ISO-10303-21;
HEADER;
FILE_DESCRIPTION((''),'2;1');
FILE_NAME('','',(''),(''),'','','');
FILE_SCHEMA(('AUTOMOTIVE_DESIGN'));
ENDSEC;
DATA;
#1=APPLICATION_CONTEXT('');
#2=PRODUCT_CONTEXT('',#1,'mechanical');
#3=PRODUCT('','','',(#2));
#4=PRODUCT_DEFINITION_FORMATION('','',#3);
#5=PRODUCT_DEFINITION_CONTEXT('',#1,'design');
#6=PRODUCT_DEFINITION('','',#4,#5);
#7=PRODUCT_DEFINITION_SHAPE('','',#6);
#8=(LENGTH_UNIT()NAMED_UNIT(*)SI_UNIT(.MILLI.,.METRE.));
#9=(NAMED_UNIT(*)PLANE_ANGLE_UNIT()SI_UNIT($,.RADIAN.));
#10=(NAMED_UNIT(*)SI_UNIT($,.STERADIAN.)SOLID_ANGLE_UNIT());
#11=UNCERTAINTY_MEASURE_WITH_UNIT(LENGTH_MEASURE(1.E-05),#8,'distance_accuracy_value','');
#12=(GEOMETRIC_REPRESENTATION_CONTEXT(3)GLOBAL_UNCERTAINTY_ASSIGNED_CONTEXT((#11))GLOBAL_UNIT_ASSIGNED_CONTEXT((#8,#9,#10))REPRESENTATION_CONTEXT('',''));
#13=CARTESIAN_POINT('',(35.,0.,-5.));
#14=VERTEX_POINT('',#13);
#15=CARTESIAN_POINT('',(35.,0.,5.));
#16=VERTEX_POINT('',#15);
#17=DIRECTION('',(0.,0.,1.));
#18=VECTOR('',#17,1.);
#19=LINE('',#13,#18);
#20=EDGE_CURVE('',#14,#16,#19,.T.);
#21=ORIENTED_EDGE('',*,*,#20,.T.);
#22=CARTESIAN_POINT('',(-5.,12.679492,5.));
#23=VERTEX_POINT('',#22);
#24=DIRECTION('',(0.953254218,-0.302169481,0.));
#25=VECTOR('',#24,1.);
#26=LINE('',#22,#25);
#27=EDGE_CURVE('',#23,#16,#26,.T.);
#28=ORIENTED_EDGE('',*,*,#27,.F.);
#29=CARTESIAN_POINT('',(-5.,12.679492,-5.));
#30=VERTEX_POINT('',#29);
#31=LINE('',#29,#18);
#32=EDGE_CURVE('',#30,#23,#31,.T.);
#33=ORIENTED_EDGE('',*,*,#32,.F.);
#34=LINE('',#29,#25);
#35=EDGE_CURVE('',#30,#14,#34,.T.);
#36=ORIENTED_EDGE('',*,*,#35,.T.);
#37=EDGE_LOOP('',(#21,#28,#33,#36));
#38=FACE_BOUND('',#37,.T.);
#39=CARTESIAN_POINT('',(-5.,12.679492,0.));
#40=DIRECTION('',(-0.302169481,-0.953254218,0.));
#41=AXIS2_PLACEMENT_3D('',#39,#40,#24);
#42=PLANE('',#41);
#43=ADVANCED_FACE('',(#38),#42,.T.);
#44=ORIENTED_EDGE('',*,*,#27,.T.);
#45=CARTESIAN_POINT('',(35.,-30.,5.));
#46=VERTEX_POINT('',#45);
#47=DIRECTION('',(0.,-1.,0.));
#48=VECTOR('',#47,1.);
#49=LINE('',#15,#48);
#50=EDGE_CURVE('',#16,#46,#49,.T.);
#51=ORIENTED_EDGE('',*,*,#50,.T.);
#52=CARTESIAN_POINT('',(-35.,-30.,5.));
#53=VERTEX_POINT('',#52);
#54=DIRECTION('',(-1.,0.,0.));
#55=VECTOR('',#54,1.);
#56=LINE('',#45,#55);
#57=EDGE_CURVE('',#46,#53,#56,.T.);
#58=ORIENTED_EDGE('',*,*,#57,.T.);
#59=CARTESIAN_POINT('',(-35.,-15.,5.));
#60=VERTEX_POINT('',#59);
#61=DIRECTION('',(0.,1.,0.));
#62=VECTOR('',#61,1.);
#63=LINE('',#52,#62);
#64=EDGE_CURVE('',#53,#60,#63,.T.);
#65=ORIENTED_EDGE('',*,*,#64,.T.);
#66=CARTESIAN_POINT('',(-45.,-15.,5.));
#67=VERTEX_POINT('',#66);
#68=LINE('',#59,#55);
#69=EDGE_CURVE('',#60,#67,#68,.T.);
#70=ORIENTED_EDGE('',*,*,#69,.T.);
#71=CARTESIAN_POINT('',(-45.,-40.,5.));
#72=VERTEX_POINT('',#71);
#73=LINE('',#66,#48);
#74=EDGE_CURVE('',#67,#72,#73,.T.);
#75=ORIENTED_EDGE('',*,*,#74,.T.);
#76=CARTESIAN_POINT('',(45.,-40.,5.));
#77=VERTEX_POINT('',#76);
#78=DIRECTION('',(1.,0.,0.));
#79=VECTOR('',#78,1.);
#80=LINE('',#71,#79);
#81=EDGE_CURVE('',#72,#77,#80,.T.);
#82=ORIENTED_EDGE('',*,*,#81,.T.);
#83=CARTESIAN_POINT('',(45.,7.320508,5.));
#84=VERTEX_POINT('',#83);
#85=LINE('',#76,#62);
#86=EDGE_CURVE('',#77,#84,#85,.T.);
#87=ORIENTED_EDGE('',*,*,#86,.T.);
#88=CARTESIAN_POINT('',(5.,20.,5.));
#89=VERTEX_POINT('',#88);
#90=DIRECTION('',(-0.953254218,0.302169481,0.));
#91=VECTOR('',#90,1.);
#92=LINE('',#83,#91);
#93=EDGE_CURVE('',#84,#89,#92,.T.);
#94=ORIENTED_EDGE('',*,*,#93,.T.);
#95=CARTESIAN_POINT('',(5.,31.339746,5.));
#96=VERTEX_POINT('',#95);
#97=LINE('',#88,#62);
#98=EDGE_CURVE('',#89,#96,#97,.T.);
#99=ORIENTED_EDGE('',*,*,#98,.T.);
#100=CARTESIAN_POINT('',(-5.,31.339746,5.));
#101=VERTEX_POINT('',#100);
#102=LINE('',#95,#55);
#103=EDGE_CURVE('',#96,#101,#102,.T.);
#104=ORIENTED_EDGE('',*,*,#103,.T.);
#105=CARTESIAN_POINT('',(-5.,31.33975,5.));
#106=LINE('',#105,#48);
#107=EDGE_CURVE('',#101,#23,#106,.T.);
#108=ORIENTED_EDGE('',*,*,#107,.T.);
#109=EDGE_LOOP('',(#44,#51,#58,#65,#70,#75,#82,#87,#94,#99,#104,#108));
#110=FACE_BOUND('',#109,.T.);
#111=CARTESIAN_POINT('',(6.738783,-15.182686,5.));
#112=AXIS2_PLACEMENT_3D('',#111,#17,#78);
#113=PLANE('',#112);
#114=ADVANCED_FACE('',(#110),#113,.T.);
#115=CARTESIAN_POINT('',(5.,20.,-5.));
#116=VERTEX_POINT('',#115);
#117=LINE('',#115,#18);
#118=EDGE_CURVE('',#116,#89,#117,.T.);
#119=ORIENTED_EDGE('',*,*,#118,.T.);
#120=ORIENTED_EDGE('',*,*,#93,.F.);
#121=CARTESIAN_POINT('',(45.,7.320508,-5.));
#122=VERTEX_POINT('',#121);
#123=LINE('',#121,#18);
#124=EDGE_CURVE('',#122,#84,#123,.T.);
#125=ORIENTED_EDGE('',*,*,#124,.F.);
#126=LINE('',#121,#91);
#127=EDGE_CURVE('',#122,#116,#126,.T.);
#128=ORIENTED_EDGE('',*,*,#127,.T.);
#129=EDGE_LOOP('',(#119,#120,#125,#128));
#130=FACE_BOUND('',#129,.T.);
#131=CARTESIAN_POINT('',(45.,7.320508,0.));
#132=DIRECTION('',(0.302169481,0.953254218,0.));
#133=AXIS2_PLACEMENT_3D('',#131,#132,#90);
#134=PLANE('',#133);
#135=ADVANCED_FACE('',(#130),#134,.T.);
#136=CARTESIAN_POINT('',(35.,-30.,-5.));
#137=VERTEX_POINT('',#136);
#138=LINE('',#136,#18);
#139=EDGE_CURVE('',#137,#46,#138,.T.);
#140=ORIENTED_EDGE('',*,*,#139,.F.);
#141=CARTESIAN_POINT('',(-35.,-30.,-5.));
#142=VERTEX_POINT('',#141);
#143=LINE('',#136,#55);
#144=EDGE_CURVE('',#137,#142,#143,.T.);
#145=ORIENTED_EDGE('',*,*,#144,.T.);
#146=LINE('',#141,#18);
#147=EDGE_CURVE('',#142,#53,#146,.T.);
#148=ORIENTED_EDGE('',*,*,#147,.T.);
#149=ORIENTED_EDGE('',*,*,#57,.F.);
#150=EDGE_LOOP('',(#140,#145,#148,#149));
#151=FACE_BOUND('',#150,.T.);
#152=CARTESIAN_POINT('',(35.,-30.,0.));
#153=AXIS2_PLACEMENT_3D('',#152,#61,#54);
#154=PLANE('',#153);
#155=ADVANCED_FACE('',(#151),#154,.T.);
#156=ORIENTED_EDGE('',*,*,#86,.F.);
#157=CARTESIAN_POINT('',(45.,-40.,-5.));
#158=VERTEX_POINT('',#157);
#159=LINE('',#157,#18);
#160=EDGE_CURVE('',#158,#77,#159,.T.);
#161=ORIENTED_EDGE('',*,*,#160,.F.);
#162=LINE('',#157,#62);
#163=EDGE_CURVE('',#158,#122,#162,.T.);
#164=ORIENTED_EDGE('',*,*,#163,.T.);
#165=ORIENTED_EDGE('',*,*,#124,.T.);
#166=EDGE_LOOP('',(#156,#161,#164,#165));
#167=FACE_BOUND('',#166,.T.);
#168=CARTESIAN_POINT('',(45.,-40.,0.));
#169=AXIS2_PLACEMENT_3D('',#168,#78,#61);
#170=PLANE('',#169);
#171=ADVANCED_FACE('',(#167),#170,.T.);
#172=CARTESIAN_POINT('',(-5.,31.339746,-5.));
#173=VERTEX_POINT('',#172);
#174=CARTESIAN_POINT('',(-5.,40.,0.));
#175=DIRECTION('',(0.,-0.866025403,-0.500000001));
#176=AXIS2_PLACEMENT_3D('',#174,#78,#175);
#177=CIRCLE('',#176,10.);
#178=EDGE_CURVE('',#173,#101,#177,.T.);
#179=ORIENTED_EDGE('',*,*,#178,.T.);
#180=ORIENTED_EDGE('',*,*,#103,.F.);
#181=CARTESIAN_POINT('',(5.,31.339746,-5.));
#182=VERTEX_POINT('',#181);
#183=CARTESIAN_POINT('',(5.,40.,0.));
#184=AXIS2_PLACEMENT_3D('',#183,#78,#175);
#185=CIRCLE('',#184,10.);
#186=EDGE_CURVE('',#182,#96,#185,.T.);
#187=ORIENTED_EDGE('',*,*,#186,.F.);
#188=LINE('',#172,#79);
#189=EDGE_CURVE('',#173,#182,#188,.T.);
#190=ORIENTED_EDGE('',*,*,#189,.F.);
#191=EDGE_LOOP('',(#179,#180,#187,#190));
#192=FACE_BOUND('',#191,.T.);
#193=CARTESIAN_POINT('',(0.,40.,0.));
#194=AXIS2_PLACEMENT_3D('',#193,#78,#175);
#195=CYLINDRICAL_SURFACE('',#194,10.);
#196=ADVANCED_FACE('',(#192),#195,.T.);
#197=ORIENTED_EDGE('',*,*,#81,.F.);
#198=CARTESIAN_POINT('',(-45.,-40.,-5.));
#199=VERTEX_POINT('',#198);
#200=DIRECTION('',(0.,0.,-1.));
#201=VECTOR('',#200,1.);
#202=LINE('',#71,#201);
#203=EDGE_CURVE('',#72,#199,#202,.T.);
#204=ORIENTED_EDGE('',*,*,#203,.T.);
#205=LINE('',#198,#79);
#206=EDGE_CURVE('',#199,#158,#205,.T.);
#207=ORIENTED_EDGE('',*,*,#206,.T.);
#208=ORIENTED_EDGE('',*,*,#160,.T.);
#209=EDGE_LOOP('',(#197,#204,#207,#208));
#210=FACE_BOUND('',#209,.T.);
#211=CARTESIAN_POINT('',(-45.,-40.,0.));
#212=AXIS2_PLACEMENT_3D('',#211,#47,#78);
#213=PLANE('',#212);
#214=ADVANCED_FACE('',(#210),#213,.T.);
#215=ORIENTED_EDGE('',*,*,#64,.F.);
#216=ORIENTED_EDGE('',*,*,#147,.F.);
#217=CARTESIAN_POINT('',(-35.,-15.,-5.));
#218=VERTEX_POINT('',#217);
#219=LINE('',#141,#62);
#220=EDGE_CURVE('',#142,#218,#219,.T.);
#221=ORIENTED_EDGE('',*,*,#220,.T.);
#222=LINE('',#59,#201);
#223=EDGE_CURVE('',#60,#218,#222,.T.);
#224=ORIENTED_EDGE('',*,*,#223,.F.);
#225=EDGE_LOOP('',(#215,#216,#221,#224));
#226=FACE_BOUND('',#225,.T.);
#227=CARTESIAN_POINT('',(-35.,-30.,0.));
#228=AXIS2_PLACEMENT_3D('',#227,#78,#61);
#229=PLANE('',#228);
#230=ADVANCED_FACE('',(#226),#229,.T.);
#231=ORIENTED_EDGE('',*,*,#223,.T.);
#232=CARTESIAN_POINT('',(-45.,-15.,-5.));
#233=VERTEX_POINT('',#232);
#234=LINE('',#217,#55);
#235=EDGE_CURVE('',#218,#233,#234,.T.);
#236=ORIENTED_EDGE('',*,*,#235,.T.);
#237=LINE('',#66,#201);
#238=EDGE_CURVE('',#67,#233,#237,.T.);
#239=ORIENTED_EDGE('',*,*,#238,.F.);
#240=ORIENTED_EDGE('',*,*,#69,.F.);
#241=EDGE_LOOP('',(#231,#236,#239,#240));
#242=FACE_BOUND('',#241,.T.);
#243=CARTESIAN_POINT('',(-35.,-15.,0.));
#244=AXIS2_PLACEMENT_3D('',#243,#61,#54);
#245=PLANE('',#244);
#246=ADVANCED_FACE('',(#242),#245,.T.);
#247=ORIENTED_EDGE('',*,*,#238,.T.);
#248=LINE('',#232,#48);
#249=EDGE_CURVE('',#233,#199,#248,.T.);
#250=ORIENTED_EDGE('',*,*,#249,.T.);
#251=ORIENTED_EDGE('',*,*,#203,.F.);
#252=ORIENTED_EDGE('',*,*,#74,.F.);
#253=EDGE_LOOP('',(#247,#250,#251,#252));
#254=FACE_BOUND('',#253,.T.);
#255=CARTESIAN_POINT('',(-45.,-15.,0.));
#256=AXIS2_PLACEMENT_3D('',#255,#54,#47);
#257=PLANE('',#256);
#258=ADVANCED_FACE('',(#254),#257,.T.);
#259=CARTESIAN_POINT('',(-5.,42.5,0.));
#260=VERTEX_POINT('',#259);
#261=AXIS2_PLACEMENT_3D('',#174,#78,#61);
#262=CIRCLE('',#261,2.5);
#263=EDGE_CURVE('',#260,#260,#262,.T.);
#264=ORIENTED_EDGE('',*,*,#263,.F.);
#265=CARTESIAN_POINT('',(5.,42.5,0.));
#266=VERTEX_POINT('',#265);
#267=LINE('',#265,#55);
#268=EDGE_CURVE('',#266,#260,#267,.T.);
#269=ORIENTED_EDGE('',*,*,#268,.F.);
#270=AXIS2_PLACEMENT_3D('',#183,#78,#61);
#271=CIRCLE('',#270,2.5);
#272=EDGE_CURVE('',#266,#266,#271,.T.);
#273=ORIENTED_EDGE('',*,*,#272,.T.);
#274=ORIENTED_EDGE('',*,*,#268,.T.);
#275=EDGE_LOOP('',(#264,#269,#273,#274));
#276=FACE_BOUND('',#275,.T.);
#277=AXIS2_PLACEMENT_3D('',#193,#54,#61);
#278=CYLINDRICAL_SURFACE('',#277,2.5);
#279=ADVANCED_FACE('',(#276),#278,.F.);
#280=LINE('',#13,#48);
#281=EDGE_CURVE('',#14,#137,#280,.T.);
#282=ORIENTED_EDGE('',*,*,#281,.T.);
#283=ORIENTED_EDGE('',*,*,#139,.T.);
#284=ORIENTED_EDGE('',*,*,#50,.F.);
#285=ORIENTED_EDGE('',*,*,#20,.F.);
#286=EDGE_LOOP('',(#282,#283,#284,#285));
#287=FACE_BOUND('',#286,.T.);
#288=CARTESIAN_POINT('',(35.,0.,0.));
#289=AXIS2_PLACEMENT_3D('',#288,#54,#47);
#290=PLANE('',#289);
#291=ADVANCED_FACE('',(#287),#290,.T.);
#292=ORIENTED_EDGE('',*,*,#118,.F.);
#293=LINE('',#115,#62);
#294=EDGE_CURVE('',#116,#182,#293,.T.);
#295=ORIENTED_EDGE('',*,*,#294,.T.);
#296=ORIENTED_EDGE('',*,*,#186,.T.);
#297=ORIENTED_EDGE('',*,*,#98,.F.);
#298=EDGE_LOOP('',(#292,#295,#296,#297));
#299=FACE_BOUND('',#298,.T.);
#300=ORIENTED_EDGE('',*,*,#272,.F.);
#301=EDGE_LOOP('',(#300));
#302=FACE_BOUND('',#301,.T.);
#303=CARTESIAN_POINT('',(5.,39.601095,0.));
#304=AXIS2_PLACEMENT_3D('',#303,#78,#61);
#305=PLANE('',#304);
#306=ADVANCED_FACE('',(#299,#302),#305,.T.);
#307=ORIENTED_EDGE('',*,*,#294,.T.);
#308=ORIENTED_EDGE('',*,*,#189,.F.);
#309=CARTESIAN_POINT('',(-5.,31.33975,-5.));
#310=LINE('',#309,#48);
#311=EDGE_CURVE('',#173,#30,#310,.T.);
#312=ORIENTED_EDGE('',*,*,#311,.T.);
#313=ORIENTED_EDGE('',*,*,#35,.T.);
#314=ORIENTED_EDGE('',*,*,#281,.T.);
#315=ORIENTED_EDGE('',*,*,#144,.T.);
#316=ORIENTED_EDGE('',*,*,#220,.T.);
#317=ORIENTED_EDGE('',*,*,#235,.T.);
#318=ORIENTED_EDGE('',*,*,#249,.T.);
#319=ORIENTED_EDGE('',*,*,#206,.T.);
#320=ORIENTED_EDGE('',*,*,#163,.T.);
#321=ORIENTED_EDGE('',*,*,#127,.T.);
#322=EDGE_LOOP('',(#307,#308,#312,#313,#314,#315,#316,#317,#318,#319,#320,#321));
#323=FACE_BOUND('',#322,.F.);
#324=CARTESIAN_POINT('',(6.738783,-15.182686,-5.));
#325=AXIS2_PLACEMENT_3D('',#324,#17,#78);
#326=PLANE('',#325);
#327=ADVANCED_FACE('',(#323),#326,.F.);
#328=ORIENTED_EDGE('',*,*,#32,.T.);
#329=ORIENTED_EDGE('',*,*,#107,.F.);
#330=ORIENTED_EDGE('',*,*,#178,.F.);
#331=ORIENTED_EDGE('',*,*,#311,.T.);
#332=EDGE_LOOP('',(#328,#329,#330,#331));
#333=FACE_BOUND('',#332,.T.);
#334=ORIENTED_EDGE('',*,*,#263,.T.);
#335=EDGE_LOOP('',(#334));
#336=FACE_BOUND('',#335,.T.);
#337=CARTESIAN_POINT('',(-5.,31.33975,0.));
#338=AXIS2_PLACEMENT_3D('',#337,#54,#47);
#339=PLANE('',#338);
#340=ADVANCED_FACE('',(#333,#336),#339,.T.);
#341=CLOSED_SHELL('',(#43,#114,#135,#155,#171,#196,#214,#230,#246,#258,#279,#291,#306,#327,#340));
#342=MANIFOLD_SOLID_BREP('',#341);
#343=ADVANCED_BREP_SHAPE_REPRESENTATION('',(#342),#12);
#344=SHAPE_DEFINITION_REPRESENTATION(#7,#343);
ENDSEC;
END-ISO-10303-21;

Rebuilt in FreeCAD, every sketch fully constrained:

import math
import FreeCAD as App
import Part
import Sketcher
Q = App.Units.Quantity

doc = App.newDocument("Part")
body = doc.addObject("PartDesign::Body", "Body")

sketch1 = body.newObject("Sketcher::SketchObject", "Sketch")
sketch1.AttachmentSupport = (doc.getObject("XY_Plane"), [""])
sketch1.MapMode = "FlatFace"
sketch1.addGeometry([
    Part.LineSegment(App.Vector(-45, -40, 0), App.Vector(45, -40, 0)),
    Part.LineSegment(App.Vector(45, -40, 0), App.Vector(45, 7.320508, 0)),
    Part.LineSegment(App.Vector(45, 7.320508, 0), App.Vector(5, 20, 0)),
    Part.LineSegment(App.Vector(5, 20, 0), App.Vector(5, 31.33975, 0)),
    Part.LineSegment(App.Vector(5, 31.33975, 0), App.Vector(-5, 31.33975, 0)),
    Part.LineSegment(App.Vector(-5, 31.33975, 0), App.Vector(-5, 12.679492, 0)),
    Part.LineSegment(App.Vector(-5, 12.679492, 0), App.Vector(35, 0, 0)),
    Part.LineSegment(App.Vector(35, 0, 0), App.Vector(35, -30, 0)),
    Part.LineSegment(App.Vector(35, -30, 0), App.Vector(-35, -30, 0)),
    Part.LineSegment(App.Vector(-35, -30, 0), App.Vector(-35, -15, 0)),
    Part.LineSegment(App.Vector(-35, -15, 0), App.Vector(-45, -15, 0)),
    Part.LineSegment(App.Vector(-45, -15, 0), App.Vector(-45, -40, 0)),
], False)
sketch1.addConstraint([
    Sketcher.Constraint("Coincident", 0, 2, 1, 1),
    Sketcher.Constraint("Coincident", 1, 2, 2, 1),
    Sketcher.Constraint("Coincident", 2, 2, 3, 1),
    Sketcher.Constraint("Coincident", 3, 2, 4, 1),
    Sketcher.Constraint("Coincident", 4, 2, 5, 1),
    Sketcher.Constraint("Coincident", 5, 2, 6, 1),
    Sketcher.Constraint("Coincident", 6, 2, 7, 1),
    Sketcher.Constraint("Coincident", 7, 2, 8, 1),
    Sketcher.Constraint("Coincident", 8, 2, 9, 1),
    Sketcher.Constraint("Coincident", 9, 2, 10, 1),
    Sketcher.Constraint("Coincident", 10, 2, 11, 1),
    Sketcher.Constraint("Coincident", 11, 2, 0, 1),
    Sketcher.Constraint("Horizontal", 0),
    Sketcher.Constraint("Vertical", 1),
    Sketcher.Constraint("Vertical", 3),
    Sketcher.Constraint("Horizontal", 4),
    Sketcher.Constraint("Vertical", 5),
    Sketcher.Constraint("Vertical", 7),
    Sketcher.Constraint("Horizontal", 8),
    Sketcher.Constraint("Vertical", 9),
    Sketcher.Constraint("Horizontal", 10),
    Sketcher.Constraint("Vertical", 11),
    Sketcher.Constraint("PointOnObject", 6, 2, -1),
    Sketcher.Constraint("Parallel", 2, 6),
    Sketcher.Constraint("Equal", 4, 10),
    Sketcher.Constraint("Equal", 2, 6),
    Sketcher.Constraint("DistanceX", 0, 1, 0, 2, Q("90 mm")),
    Sketcher.Constraint("DistanceX", 4, 2, 4, 1, Q("10 mm")),
    Sketcher.Constraint("DistanceY", 7, 2, 7, 1, Q("30 mm")),
    Sketcher.Constraint("DistanceY", 9, 1, 9, 2, Q("15 mm")),
    Sketcher.Constraint("DistanceY", 11, 2, 11, 1, Q("25 mm")),
    Sketcher.Constraint("DistanceX", -1, 1, 0, 2, Q("45 mm")),
    Sketcher.Constraint("DistanceX", -1, 1, 2, 2, Q("5 mm")),
    Sketcher.Constraint("DistanceY", -1, 1, 2, 2, Q("20 mm")),
    Sketcher.Constraint("DistanceY", 1, 1, 1, 2, Q("47.320508 mm")),
    Sketcher.Constraint("DistanceY", 3, 1, 3, 2, Q("11.33975 mm")),
])
pad1 = body.newObject("PartDesign::Pad", "Pad")
pad1.Profile = sketch1
pad1.Length = 10
pad1.Midplane = True

sketch2 = body.newObject("Sketcher::SketchObject", "Sketch001")
sketch2.AttachmentSupport = (doc.getObject("YZ_Plane"), [""])
sketch2.MapMode = "FlatFace"
sketch2.addGeometry([
    Part.LineSegment(App.Vector(31.339746, 5, 0), App.Vector(31.339746, -5, 0)),
    Part.ArcOfCircle(Part.Circle(App.Vector(40, 0, 0), App.Vector(0, 0, 1), 10), math.radians(-150), math.radians(150)),
    Part.Circle(App.Vector(40, 0, 0), App.Vector(0, 0, 1), 2.5),
], False)
sketch2.addConstraint([
    Sketcher.Constraint("Coincident", 0, 1, 1, 2),
    Sketcher.Constraint("Coincident", 1, 1, 0, 2),
    Sketcher.Constraint("Vertical", 0),
    Sketcher.Constraint("Coincident", 2, 3, 1, 3),
    Sketcher.Constraint("PointOnObject", 1, 3, -1),
    Sketcher.Constraint("Diameter", 2, Q("5 mm")),
    Sketcher.Constraint("Radius", 1, Q("10 mm")),
    Sketcher.Constraint("DistanceY", 0, 2, 0, 1, Q("10 mm")),
    Sketcher.Constraint("DistanceX", -1, 1, 1, 3, Q("40 mm")),
])
pad2 = body.newObject("PartDesign::Pad", "Pad001")
pad2.Profile = sketch2
pad2.Length = 10
pad2.Midplane = True

doc.recompute()
